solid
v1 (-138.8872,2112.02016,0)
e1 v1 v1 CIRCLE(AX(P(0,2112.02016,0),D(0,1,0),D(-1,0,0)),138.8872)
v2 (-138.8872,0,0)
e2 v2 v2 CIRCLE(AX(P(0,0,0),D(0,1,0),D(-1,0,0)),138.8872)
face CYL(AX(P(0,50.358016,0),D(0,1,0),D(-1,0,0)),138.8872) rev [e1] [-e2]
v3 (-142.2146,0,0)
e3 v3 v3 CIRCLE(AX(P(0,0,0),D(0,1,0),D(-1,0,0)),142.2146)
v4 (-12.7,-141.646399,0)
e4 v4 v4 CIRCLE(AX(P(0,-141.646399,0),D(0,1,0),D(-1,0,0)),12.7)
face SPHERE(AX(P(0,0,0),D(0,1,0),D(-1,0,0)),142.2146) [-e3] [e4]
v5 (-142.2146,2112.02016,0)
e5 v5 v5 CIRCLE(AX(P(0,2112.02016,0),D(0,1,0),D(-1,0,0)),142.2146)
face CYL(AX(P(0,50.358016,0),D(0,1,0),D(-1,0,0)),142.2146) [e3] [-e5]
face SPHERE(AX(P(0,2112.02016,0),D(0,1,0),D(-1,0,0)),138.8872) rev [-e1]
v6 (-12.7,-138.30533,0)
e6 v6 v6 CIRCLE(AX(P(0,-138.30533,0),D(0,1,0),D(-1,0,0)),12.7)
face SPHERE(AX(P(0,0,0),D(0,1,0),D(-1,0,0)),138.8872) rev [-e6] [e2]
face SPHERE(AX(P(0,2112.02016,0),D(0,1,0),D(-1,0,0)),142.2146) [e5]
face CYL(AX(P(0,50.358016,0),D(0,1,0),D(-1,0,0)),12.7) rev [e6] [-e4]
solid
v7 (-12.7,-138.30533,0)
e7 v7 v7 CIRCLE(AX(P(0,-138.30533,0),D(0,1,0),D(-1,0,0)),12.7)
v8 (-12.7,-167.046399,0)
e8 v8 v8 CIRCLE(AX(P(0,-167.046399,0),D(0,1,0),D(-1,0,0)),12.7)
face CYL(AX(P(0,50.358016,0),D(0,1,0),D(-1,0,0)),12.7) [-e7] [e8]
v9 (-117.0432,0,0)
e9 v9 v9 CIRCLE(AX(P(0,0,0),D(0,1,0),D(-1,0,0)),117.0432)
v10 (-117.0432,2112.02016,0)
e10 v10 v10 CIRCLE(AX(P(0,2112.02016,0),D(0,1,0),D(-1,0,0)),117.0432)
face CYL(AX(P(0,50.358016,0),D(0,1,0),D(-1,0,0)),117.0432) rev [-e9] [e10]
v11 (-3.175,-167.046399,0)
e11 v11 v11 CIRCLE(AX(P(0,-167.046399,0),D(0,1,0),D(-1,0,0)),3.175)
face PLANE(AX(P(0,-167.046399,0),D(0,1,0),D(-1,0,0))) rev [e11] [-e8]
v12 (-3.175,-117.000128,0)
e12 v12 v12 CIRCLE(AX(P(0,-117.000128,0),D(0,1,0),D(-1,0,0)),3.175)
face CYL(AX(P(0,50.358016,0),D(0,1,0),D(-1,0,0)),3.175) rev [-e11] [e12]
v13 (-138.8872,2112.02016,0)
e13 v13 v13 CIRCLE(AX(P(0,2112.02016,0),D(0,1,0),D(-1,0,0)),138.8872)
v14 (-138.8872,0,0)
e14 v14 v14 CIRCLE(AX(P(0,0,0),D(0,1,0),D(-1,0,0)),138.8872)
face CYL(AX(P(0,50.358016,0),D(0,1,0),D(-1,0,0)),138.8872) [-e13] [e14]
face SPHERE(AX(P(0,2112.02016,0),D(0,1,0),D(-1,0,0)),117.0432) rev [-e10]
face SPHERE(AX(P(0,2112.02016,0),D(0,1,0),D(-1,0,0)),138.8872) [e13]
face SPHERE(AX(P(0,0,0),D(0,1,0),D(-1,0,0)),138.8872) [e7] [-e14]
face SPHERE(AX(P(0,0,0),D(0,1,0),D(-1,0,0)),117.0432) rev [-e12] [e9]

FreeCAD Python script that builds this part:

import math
import FreeCAD as App
import Part
import Sketcher

V = App.Vector
Q = App.Units.Quantity

doc = App.newDocument("Part")
body = doc.addObject("PartDesign::Body", "Body")

# Sketch on XY plane
sketch1 = body.newObject("Sketcher::SketchObject", "Sketch")
sketch1.AttachmentSupport = (doc.getObject("XY_Plane"), [""])
sketch1.MapMode = "FlatFace"
sketch1.addGeometry([
    Part.LineSegment(V(-117.0432, 0, 0), V(-117.0432, 2112.02016, 0)),  # 0
    Part.ArcOfCircle(Part.Circle(V(0, 2112.02016, 0), V(0, 0, 1), 117.0432), math.radians(90), math.radians(180)),  # 1
    Part.LineSegment(V(0, 2229.06336, 0), V(0, 2250.90736, 0)),  # 2
    Part.ArcOfCircle(Part.Circle(V(0, 2112.02016, 0), V(0, 0, 1), 138.8872), math.radians(90), math.radians(180)),  # 3
    Part.LineSegment(V(-138.8872, 2112.02016, 0), V(-138.8872, 0, 0)),  # 4
    Part.ArcOfCircle(Part.Circle(V(0, 0, 0), V(0, 0, 1), 138.8872), math.radians(180), math.radians(264.753481)),  # 5
    Part.LineSegment(V(-12.7, -138.30533, 0), V(-12.7, -167.046399, 0)),  # 6
    Part.LineSegment(V(-12.7, -167.046399, 0), V(-3.175, -167.046399, 0)),  # 7
    Part.LineSegment(V(-3.175, -167.046399, 0), V(-3.175, -117.000128, 0)),  # 8
    Part.ArcOfCircle(Part.Circle(V(0, 0, 0), V(0, 0, 1), 117.0432), math.radians(180), math.radians(268.445562)),  # 9
], False)
sketch1.addConstraint([
    Sketcher.Constraint("Tangent", 0, 2, 1, 2),
    Sketcher.Constraint("Coincident", 1, 1, 2, 1),
    Sketcher.Constraint("Coincident", 2, 2, 3, 1),
    Sketcher.Constraint("Tangent", 3, 2, 4, 1),
    Sketcher.Constraint("Tangent", 4, 2, 5, 1),
    Sketcher.Constraint("Coincident", 5, 2, 6, 1),
    Sketcher.Constraint("Coincident", 6, 2, 7, 1),
    Sketcher.Constraint("Coincident", 7, 2, 8, 1),
    Sketcher.Constraint("Coincident", 8, 2, 9, 2),
    Sketcher.Constraint("Tangent", 9, 1, 0, 1),
    Sketcher.Constraint("Vertical", 0),
    Sketcher.Constraint("Vertical", 2),
    Sketcher.Constraint("Vertical", 4),
    Sketcher.Constraint("Vertical", 6),
    Sketcher.Constraint("Horizontal", 7),
    Sketcher.Constraint("Vertical", 8),
    Sketcher.Constraint("Coincident", 5, 3, -1, 1),
    Sketcher.Constraint("Coincident", 9, 3, -1, 1),
    Sketcher.Constraint("Coincident", 3, 3, 1, 3),
    Sketcher.Constraint("Equal", 3, 5),
    Sketcher.Constraint("PointOnObject", 1, 1, -2),
    Sketcher.Constraint("Radius", 1, Q("4.608 in")),
    Sketcher.Constraint("Radius", 3, Q("5.468 in")),
    Sketcher.Constraint("DistanceX", 5, 2, -1, 1, Q("0.5 in")),
    Sketcher.Constraint("DistanceX", 7, 1, 7, 2, Q("0.375 in")),
    Sketcher.Constraint("DistanceY", 0, 1, 0, 2, Q("83.1504 in")),
    Sketcher.Constraint("DistanceY", 6, 2, 6, 1, 28.741069),
])
revolution = body.newObject("PartDesign::Revolution", "Revolution")
revolution.Profile = sketch1
revolution.ReferenceAxis = (sketch1, ["V_Axis"])
revolution.Angle = 360
body2 = doc.addObject("PartDesign::Body", "Body001")

# Sketch on XY plane
sketch2 = body2.newObject("Sketcher::SketchObject", "Sketch001")
sketch2.AttachmentSupport = (doc.getObject("XY_Plane001"), [""])
sketch2.MapMode = "FlatFace"
sketch2.addGeometry([
    Part.ArcOfCircle(Part.Circle(V(0, 2112.02016, 0), V(0, 0, 1), 138.8872), math.radians(90), math.radians(180)),  # 0
    Part.LineSegment(V(0, 2250.90736, 0), V(0, 2254.23476, 0)),  # 1
    Part.ArcOfCircle(Part.Circle(V(0, 2112.02016, 0), V(0, 0, 1), 142.2146), math.radians(90), math.radians(180)),  # 2
    Part.LineSegment(V(-142.2146, 2112.02016, 0), V(-142.2146, 0, 0)),  # 3
    Part.ArcOfCircle(Part.Circle(V(0, 0, 0), V(0, 0, 1), 142.2146), math.radians(-180), math.radians(-95.123433)),  # 4
    Part.LineSegment(V(-12.7, -141.646399, 0), V(-12.7, -138.30533, 0)),  # 5
    Part.ArcOfCircle(Part.Circle(V(0, 0, 0), V(0, 0, 1), 138.8872), math.radians(180), math.radians(264.753481)),  # 6
    Part.LineSegment(V(-138.8872, 0, 0), V(-138.8872, 2112.02016, 0)),  # 7
], False)
sketch2.addConstraint([
    Sketcher.Constraint("Coincident", 0, 1, 1, 1),
    Sketcher.Constraint("Coincident", 1, 2, 2, 1),
    Sketcher.Constraint("Tangent", 2, 2, 3, 1),
    Sketcher.Constraint("Tangent", 3, 2, 4, 1),
    Sketcher.Constraint("Coincident", 4, 2, 5, 1),
    Sketcher.Constraint("Coincident", 5, 2, 6, 2),
    Sketcher.Constraint("Tangent", 6, 1, 7, 1),
    Sketcher.Constraint("Tangent", 7, 2, 0, 2),
    Sketcher.Constraint("Vertical", 1),
    Sketcher.Constraint("Vertical", 3),
    Sketcher.Constraint("Vertical", 5),
    Sketcher.Constraint("Vertical", 7),
    Sketcher.Constraint("Coincident", 4, 3, -1, 1),
    Sketcher.Constraint("Coincident", 6, 3, -1, 1),
    Sketcher.Constraint("Coincident", 2, 3, 0, 3),
    Sketcher.Constraint("Equal", 2, 4),
    Sketcher.Constraint("PointOnObject", 0, 1, -2),
    Sketcher.Constraint("Radius", 0, Q("5.468 in")),
    Sketcher.Constraint("Radius", 2, Q("5.599 in")),
    Sketcher.Constraint("DistanceX", 4, 2, -1, 1, Q("0.5 in")),
    Sketcher.Constraint("DistanceY", 3, 2, 3, 1, Q("83.1504 in")),
])
revolution2 = body2.newObject("PartDesign::Revolution", "Revolution001")
revolution2.Profile = sketch2
revolution2.ReferenceAxis = (sketch2, ["V_Axis"])
revolution2.Angle = 360

doc.recompute()
